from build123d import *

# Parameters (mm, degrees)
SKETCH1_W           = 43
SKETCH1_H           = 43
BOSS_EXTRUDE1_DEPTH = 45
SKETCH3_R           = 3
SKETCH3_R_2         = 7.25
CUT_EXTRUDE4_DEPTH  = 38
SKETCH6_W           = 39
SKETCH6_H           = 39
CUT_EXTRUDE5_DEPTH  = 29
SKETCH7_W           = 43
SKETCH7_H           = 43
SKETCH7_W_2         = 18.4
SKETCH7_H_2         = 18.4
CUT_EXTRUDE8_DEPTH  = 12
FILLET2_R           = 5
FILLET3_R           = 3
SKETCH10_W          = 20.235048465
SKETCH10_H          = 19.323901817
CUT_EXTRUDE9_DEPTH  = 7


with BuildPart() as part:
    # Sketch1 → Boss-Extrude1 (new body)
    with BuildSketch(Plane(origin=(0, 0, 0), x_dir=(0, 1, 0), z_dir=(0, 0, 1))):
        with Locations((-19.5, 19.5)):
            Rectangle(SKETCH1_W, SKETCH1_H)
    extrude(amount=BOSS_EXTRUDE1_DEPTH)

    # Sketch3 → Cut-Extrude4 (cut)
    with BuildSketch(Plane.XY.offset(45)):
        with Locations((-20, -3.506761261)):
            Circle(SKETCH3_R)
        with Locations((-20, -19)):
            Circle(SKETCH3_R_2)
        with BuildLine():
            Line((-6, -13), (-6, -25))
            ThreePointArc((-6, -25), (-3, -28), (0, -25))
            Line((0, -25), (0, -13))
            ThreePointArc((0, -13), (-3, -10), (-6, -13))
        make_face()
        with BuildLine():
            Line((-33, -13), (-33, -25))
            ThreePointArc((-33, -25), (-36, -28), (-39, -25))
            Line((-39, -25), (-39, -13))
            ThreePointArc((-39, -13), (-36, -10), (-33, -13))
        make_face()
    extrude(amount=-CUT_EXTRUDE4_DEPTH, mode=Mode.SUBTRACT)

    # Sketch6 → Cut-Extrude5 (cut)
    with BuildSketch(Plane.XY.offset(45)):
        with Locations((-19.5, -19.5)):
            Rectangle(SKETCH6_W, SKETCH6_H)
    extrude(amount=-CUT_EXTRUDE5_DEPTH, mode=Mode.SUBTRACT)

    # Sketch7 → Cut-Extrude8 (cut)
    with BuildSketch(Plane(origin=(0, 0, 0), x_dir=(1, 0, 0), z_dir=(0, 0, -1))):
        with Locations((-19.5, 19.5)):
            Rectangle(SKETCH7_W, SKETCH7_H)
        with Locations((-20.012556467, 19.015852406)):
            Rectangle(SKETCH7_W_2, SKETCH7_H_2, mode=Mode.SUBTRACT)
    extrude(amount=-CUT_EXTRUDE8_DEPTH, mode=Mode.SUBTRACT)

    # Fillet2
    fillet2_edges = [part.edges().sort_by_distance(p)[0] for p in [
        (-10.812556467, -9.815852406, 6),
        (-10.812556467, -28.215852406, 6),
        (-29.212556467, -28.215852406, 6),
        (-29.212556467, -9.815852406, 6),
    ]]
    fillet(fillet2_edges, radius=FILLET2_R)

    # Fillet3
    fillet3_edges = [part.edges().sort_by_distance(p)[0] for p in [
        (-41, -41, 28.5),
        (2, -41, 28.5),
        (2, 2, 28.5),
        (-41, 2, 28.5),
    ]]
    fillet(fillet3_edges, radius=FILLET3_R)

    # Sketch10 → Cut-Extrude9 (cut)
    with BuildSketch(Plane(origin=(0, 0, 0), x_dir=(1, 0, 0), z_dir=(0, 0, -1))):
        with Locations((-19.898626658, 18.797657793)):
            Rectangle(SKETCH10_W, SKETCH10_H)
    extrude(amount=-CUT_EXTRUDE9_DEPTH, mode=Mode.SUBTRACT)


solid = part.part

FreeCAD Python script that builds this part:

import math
import FreeCAD as App
import Part
import Sketcher

V = App.Vector


def edges_at(feature, points):
    """Names of the edges that pass closest to the given points."""
    edges = feature.Shape.Edges
    near = lambda p: min(range(len(edges)), key=lambda i: edges[i].distToShape(Part.Vertex(*p))[0])
    return sorted({f"Edge{near(p) + 1}" for p in points})

doc = App.newDocument("Part")
body = doc.addObject("PartDesign::Body", "Body")

sketch1 = doc.addObject("Sketcher::SketchObject", "Sketch")
body.addObject(sketch1)
sketch1.AttachmentSupport = (doc.XY_Plane, [""])
sketch1.MapMode = "FlatFace"
sketch1.addGeometry([
    Part.LineSegment(V(-41, -41, 0), V(2, -41, 0)),
    Part.LineSegment(V(2, -41, 0), V(2, 2, 0)),
    Part.LineSegment(V(2, 2, 0), V(-41, 2, 0)),
    Part.LineSegment(V(-41, 2, 0), V(-41, -41, 0)),
], False)
sketch1.addConstraint([
    Sketcher.Constraint("Coincident", 0, 2, 1, 1),
    Sketcher.Constraint("Coincident", 1, 2, 2, 1),
    Sketcher.Constraint("Coincident", 2, 2, 3, 1),
    Sketcher.Constraint("Coincident", 3, 2, 0, 1),
    Sketcher.Constraint("Horizontal", 0),
    Sketcher.Constraint("Vertical", 1),
    Sketcher.Constraint("Horizontal", 2),
    Sketcher.Constraint("Vertical", 3),
    Sketcher.Constraint("Equal", 2, 1),
    Sketcher.Constraint("DistanceX", 0, 1, 0, 2, 43.0),
    Sketcher.Constraint("DistanceX", -1, 1, 0, 2, 2.0),
    Sketcher.Constraint("DistanceY", 0, 2, -1, 1, 41.0),
])
pad1 = doc.addObject("PartDesign::Pad", "Pad")
body.addObject(pad1)
pad1.Profile = sketch1
pad1.Length = 45

sketch2 = doc.addObject("Sketcher::SketchObject", "Sketch001")
body.addObject(sketch2)
sketch2.AttachmentSupport = (doc.XY_Plane, [""])
sketch2.MapMode = "FlatFace"
sketch2.AttachmentOffset = App.Placement(V(0, 0, 45), App.Rotation())
sketch2.addGeometry([
    Part.Circle(V(-20, -3.5, 0), V(0, 0, 1), 3),
    Part.Circle(V(-20, -19, 0), V(0, 0, 1), 7.2),
    Part.LineSegment(V(-6, -13, 0), V(-6, -25, 0)),
    Part.ArcOfCircle(Part.Circle(V(-3, -25, 0), V(0, 0, 1), 3), math.radians(180), math.radians(360)),
    Part.LineSegment(V(0, -25, 0), V(0, -13, 0)),
    Part.ArcOfCircle(Part.Circle(V(-3, -13, 0), V(0, 0, 1), 3), math.radians(0), math.radians(180)),
    Part.LineSegment(V(-33, -25, 0), V(-33, -13, 0)),
    Part.ArcOfCircle(Part.Circle(V(-36, -13, 0), V(0, 0, 1), 3), math.radians(0), math.radians(180)),
    Part.LineSegment(V(-39, -13, 0), V(-39, -25, 0)),
    Part.ArcOfCircle(Part.Circle(V(-36, -25, 0), V(0, 0, 1), 3), math.radians(180), math.radians(360)),
], False)
sketch2.addConstraint([
    Sketcher.Constraint("Tangent", 2, 2, 3, 1),
    Sketcher.Constraint("Tangent", 3, 2, 4, 1),
    Sketcher.Constraint("Tangent", 4, 2, 5, 1),
    Sketcher.Constraint("Tangent", 5, 2, 2, 1),
    Sketcher.Constraint("Tangent", 6, 2, 7, 1),
    Sketcher.Constraint("Tangent", 7, 2, 8, 1),
    Sketcher.Constraint("Tangent", 8, 2, 9, 1),
    Sketcher.Constraint("Tangent", 9, 2, 6, 1),
    Sketcher.Constraint("Vertical", 2),
    Sketcher.Constraint("Vertical", 4),
    Sketcher.Constraint("Vertical", 6),
    Sketcher.Constraint("Vertical", 8),
    Sketcher.Constraint("Equal", 0, 3),
    Sketcher.Constraint("Equal", 5, 7),
    Sketcher.Constraint("PointOnObject", 3, 2, -2),
    Sketcher.Constraint("Horizontal", 5, 3, 7, 3),
    Sketcher.Constraint("Horizontal", 3, 3, 9, 3),
    Sketcher.Constraint("Vertical", 0, 3, 1, 3),
    Sketcher.Constraint("Diameter", 0, 6.0),
    Sketcher.Constraint("Diameter", 1, 14.5),
    Sketcher.Constraint("DistanceY", 2, 2, 2, 1, 12.0),
    Sketcher.Constraint("DistanceX", 0, 3, -1, 1, 20.0),
    Sketcher.Constraint("DistanceY", 1, 3, -1, 1, 19.0),
    Sketcher.Constraint("DistanceY", 3, 3, -1, 1, 25.0),
    Sketcher.Constraint("DistanceX", 7, 3, -1, 1, 36.0),
    Sketcher.Constraint("DistanceY", 0, 3, -1, 1, 3.506761),
])
pocket1 = doc.addObject("PartDesign::Pocket", "Pocket")
body.addObject(pocket1)
pocket1.Profile = sketch2
pocket1.Length = 38

sketch3 = doc.addObject("Sketcher::SketchObject", "Sketch002")
body.addObject(sketch3)
sketch3.AttachmentSupport = (doc.XY_Plane, [""])
sketch3.MapMode = "FlatFace"
sketch3.AttachmentOffset = App.Placement(V(0, 0, 45), App.Rotation())
sketch3.addGeometry([
    Part.LineSegment(V(-39, 0, 0), V(-39, -39, 0)),
    Part.LineSegment(V(-39, -39, 0), V(0, -39, 0)),
    Part.LineSegment(V(0, -39, 0), V(0, 0, 0)),
    Part.LineSegment(V(0, 0, 0), V(-39, 0, 0)),
], False)
sketch3.addConstraint([
    Sketcher.Constraint("Coincident", 0, 2, 1, 1),
    Sketcher.Constraint("Coincident", 1, 2, 2, 1),
    Sketcher.Constraint("Coincident", 2, 2, 3, 1),
    Sketcher.Constraint("Coincident", 3, 2, 0, 1),
    Sketcher.Constraint("Vertical", 0),
    Sketcher.Constraint("Horizontal", 1),
    Sketcher.Constraint("Vertical", 2),
    Sketcher.Constraint("Horizontal", 3),
    Sketcher.Constraint("Coincident", 2, 2, -1, 1),
    Sketcher.Constraint("Equal", 3, 0),
    Sketcher.Constraint("DistanceX", 1, 1, 1, 2, 39.0),
])
pocket2 = doc.addObject("PartDesign::Pocket", "Pocket001")
body.addObject(pocket2)
pocket2.Profile = sketch3
pocket2.Length = 29

sketch4 = doc.addObject("Sketcher::SketchObject", "Sketch003")
body.addObject(sketch4)
sketch4.AttachmentSupport = (doc.XY_Plane, [""])
sketch4.MapMode = "FlatFace"
sketch4.addGeometry([
    Part.LineSegment(V(-41, -41, 0), V(-41, 2, 0)),
    Part.LineSegment(V(-41, 2, 0), V(2, 2, 0)),
    Part.LineSegment(V(2, 2, 0), V(2, -41, 0)),
    Part.LineSegment(V(2, -41, 0), V(-41, -41, 0)),
    Part.LineSegment(V(-11, -10, 0), V(-29, -10, 0)),
    Part.LineSegment(V(-29, -10, 0), V(-29, -28, 0)),
    Part.LineSegment(V(-29, -28, 0), V(-11, -28, 0)),
    Part.LineSegment(V(-11, -28, 0), V(-11, -10, 0)),
], False)
sketch4.addConstraint([
    Sketcher.Constraint("Coincident", 0, 2, 1, 1),
    Sketcher.Constraint("Coincident", 1, 2, 2, 1),
    Sketcher.Constraint("Coincident", 2, 2, 3, 1),
    Sketcher.Constraint("Coincident", 3, 2, 0, 1),
    Sketcher.Constraint("Coincident", 4, 2, 5, 1),
    Sketcher.Constraint("Coincident", 5, 2, 6, 1),
    Sketcher.Constraint("Coincident", 6, 2, 7, 1),
    Sketcher.Constraint("Coincident", 7, 2, 4, 1),
    Sketcher.Constraint("Vertical", 0),
    Sketcher.Constraint("Horizontal", 1),
    Sketcher.Constraint("Vertical", 2),
    Sketcher.Constraint("Horizontal", 3),
    Sketcher.Constraint("Horizontal", 4),
    Sketcher.Constraint("Vertical", 5),
    Sketcher.Constraint("Horizontal", 6),
    Sketcher.Constraint("Vertical", 7),
    Sketcher.Constraint("Equal", 3, 0),
    Sketcher.Constraint("Equal", 6, 5),
    Sketcher.Constraint("DistanceX", 1, 1, 1, 2, 43.0),
    Sketcher.Constraint("DistanceX", 4, 2, 4, 1, 18.4),
    Sketcher.Constraint("DistanceX", 0, 2, -1, 1, 41.0),
    Sketcher.Constraint("DistanceY", -1, 1, 0, 2, 2.0),
    Sketcher.Constraint("DistanceX", 4, 2, -1, 1, 29.212556),
    Sketcher.Constraint("DistanceY", 4, 2, -1, 1, 9.815852),
])
pocket3 = doc.addObject("PartDesign::Pocket", "Pocket002")
body.addObject(pocket3)
pocket3.Profile = sketch4
pocket3.Length = 12
pocket3.Reversed = True
doc.recompute()

fillet = doc.addObject("PartDesign::Fillet", "Fillet")
body.addObject(fillet)
fillet.Base = (pocket3, edges_at(pocket3, [
    (-10.813, -9.816, 6),
    (-10.813, -28.216, 6),
    (-29.213, -28.216, 6),
    (-29.213, -9.816, 6),
]))
fillet.Radius = 5
doc.recompute()

fillet2 = doc.addObject("PartDesign::Fillet", "Fillet001")
body.addObject(fillet2)
fillet2.Base = (fillet, edges_at(fillet, [
    (-41, -41, 28.5),
    (2, -41, 28.5),
    (2, 2, 28.5),
    (-41, 2, 28.5),
]))
fillet2.Radius = 3

sketch5 = doc.addObject("Sketcher::SketchObject", "Sketch004")
body.addObject(sketch5)
sketch5.AttachmentSupport = (doc.XY_Plane, [""])
sketch5.MapMode = "FlatFace"
sketch5.addGeometry([
    Part.LineSegment(V(-30, -28, 0), V(-30, -9, 0)),
    Part.LineSegment(V(-30, -9, 0), V(-10, -9, 0)),
    Part.LineSegment(V(-10, -9, 0), V(-10, -28, 0)),
    Part.LineSegment(V(-10, -28, 0), V(-30, -28, 0)),
], False)
sketch5.addConstraint([
    Sketcher.Constraint("Coincident", 0, 2, 1, 1),
    Sketcher.Constraint("Coincident", 1, 2, 2, 1),
    Sketcher.Constraint("Coincident", 2, 2, 3, 1),
    Sketcher.Constraint("Coincident", 3, 2, 0, 1),
    Sketcher.Constraint("Vertical", 0),
    Sketcher.Constraint("Horizontal", 1),
    Sketcher.Constraint("Vertical", 2),
    Sketcher.Constraint("Horizontal", 3),
    Sketcher.Constraint("DistanceY", 0, 1, 0, 2, 19.323902),
    Sketcher.Constraint("DistanceX", 1, 1, 1, 2, 20.235048),
    Sketcher.Constraint("DistanceX", 0, 2, -1, 1, 30.016151),
    Sketcher.Constraint("DistanceY", 2, 2, -1, 1, 28.459609),
])
pocket4 = doc.addObject("PartDesign::Pocket", "Pocket003")
body.addObject(pocket4)
pocket4.Profile = sketch5
pocket4.Length = 7
pocket4.Reversed = True

doc.recompute()
